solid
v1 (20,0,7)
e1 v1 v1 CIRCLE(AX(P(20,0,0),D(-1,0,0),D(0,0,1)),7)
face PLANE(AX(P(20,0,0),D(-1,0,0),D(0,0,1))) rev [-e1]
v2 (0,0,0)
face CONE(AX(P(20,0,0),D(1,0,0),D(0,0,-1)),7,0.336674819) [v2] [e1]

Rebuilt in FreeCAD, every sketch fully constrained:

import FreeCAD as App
import Part
import Sketcher

V = App.Vector


def add_polygon(sketch, points):
    """Adds a closed chain of lines whose ends are joined by coincident constraints."""
    first, n = sketch.GeometryCount, len(points)
    for a, b in zip(points, points[1:] + points[:1]):
        sketch.addGeometry(Part.LineSegment(App.Vector(*a, 0), App.Vector(*b, 0)), False)
    for i in range(n):
        sketch.addConstraint(Sketcher.Constraint("Coincident", first + i, 2, first + (i + 1) % n, 1))

doc = App.newDocument("Part")
body = doc.addObject("PartDesign::Body", "Body")

sketch1 = body.newObject("Sketcher::SketchObject", "Sketch")
sketch1.AttachmentSupport = (doc.getObject("XY_Plane"), [""])
sketch1.MapMode = "FlatFace"
add_polygon(sketch1, [(20, 7), (0, 0), (20, 0)])
sketch1.addConstraint(Sketcher.Constraint("Horizontal", 1))
sketch1.addConstraint(Sketcher.Constraint("Vertical", 2))
sketch1.addConstraint(Sketcher.Constraint("Coincident", 0, 2, -1, 1))
sketch1.addConstraint(Sketcher.Constraint("DistanceX", 1, 1, 1, 2, 20.0))
sketch1.addConstraint(Sketcher.Constraint("DistanceY", 2, 1, 2, 2, 7.0))
revolution = body.newObject("PartDesign::Revolution", "Revolution")
revolution.Profile = sketch1
revolution.ReferenceAxis = (sketch1, ["H_Axis"])
revolution.Angle = 360

doc.recompute()
